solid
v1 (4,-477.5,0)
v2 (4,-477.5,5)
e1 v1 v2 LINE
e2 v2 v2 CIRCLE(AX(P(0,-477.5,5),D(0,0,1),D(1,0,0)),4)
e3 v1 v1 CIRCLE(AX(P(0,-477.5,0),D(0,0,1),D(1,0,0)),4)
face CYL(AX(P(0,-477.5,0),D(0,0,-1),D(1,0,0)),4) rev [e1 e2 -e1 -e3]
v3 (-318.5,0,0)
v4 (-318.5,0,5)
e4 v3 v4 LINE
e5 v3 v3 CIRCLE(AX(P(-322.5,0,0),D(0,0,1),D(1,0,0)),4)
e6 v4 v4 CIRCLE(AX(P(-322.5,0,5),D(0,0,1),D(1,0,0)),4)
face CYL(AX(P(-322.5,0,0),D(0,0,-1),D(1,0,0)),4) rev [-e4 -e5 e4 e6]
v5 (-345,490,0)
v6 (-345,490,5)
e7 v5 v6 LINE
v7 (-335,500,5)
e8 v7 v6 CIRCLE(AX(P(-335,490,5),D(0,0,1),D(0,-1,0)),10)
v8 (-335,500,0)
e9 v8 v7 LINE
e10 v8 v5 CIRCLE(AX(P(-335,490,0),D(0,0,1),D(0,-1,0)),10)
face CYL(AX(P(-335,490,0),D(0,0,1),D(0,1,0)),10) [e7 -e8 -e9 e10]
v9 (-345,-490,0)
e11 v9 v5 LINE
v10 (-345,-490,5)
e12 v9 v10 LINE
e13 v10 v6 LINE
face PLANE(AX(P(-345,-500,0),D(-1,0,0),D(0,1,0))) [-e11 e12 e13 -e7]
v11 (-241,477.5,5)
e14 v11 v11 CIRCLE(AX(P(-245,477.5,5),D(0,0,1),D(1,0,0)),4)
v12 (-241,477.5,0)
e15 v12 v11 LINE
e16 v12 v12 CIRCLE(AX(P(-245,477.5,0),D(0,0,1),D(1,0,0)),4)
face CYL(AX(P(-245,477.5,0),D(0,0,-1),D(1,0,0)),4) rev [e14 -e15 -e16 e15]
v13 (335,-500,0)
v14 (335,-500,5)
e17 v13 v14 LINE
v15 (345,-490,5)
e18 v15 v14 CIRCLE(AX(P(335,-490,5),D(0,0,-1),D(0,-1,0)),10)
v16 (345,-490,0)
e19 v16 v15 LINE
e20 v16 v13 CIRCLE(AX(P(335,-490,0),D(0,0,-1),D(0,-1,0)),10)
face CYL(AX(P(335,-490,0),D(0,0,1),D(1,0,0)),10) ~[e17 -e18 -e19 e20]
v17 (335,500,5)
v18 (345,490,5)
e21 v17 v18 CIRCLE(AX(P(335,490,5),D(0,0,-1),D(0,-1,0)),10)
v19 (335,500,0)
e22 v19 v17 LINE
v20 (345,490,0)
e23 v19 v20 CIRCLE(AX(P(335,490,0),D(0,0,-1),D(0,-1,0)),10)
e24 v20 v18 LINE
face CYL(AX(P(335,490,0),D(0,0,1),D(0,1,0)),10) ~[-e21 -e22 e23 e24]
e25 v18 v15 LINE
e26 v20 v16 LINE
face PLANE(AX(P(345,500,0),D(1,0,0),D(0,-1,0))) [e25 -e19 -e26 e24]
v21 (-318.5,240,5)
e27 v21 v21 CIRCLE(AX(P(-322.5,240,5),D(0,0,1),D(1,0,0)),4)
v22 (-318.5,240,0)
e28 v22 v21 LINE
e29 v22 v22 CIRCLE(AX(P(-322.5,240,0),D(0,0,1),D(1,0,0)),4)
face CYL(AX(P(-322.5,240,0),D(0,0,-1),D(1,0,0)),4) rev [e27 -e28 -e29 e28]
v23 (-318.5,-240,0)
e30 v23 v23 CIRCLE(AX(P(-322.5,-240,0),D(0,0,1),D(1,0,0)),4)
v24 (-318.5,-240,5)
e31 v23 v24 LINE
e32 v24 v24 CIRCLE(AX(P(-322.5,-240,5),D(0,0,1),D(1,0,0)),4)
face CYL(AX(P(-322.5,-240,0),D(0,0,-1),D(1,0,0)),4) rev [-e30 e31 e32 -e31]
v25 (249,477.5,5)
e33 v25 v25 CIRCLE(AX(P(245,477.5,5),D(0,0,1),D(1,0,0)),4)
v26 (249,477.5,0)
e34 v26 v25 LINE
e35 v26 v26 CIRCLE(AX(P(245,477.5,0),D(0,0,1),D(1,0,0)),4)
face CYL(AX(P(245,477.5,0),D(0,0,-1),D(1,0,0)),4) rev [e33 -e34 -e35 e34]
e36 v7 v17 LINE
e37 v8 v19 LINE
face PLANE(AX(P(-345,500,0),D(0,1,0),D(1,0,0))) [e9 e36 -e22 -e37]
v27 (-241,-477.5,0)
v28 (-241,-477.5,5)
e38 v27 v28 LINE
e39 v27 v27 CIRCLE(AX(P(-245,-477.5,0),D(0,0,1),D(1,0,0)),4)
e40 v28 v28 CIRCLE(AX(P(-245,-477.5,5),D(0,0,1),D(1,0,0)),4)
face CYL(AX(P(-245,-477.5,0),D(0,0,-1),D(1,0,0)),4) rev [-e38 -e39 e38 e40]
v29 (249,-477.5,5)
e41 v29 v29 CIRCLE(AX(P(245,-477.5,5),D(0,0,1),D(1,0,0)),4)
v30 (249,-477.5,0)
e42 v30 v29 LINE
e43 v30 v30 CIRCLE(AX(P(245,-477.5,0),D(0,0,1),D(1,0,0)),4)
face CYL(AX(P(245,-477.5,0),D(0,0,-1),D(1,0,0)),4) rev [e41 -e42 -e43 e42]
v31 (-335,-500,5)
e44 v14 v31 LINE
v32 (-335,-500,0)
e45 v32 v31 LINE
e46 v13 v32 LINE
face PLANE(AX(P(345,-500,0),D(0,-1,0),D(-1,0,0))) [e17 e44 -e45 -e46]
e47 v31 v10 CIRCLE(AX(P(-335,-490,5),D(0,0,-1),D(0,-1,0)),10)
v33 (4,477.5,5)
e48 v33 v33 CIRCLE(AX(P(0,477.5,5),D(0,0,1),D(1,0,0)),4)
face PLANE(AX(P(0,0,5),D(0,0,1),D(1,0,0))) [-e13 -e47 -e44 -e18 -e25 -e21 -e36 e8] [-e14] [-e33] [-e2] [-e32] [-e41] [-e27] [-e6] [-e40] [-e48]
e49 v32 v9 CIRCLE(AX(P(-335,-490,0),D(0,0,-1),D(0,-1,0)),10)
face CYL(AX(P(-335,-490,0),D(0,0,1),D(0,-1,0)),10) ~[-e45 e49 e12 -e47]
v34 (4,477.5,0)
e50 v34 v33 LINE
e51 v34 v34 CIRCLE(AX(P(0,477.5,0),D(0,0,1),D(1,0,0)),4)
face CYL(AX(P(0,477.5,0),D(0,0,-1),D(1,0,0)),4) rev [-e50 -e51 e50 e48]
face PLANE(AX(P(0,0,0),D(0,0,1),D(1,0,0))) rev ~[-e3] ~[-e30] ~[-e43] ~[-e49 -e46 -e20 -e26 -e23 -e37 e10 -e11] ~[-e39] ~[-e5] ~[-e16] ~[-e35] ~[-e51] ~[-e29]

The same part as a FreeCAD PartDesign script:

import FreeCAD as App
import Part
import Sketcher


def edges_at(feature, points):
    """Names of the edges that pass closest to the given points."""
    edges = feature.Shape.Edges
    near = lambda p: min(range(len(edges)), key=lambda i: edges[i].distToShape(Part.Vertex(*p))[0])
    return sorted({f"Edge{near(p) + 1}" for p in points})


def add_polygon(sketch, points):
    """Adds a closed chain of lines whose ends are joined by coincident constraints."""
    first, n = sketch.GeometryCount, len(points)
    for a, b in zip(points, points[1:] + points[:1]):
        sketch.addGeometry(Part.LineSegment(App.Vector(*a, 0), App.Vector(*b, 0)), False)
    for i in range(n):
        sketch.addConstraint(Sketcher.Constraint("Coincident", first + i, 2, first + (i + 1) % n, 1))

doc = App.newDocument("Part")
params = doc.addObject("Spreadsheet::Sheet", "Params")
for row, (alias, value) in enumerate([
    ("sketch1_diameter", "8 mm"),
    ("sketch1_width", "690 mm"),
    ("sketch1_height", "1000 mm"),
    ("pad1_length", "5 mm"),
    ("fillet_radius", "10 mm"),
], start=1):
    params.set(f"A{row}", alias)
    params.set(f"B{row}", "=" + value)
    params.setAlias(f"B{row}", alias)

body = doc.addObject("PartDesign::Body", "Body")

# Sketch on XY plane
sketch1 = body.newObject("Sketcher::SketchObject", "Sketch")
sketch1.AttachmentSupport = (doc.getObject("XY_Plane"), [""])
sketch1.MapMode = "FlatFace"
add_polygon(sketch1, [(345, 500), (-345, 500), (-345, -500), (345, -500)])  # lines 0-3
sketch1.addGeometry(Part.Circle(App.Vector(-245, -477.5, 0), App.Vector(0, 0, 1), 4), False)  # 4
sketch1.addGeometry(Part.Circle(App.Vector(-322.5, -240, 0), App.Vector(0, 0, 1), 4), False)  # 5
sketch1.addGeometry(Part.Circle(App.Vector(0, -477.5, 0), App.Vector(0, 0, 1), 4), False)  # 6
sketch1.addGeometry(Part.Circle(App.Vector(245, -477.5, 0), App.Vector(0, 0, 1), 4), False)  # 7
sketch1.addGeometry(Part.Circle(App.Vector(-322.5, 0, 0), App.Vector(0, 0, 1), 4), False)  # 8
sketch1.addGeometry(Part.Circle(App.Vector(-322.5, 240, 0), App.Vector(0, 0, 1), 4), False)  # 9
sketch1.addGeometry(Part.Circle(App.Vector(-245, 477.5, 0), App.Vector(0, 0, 1), 4), False)  # 10
sketch1.addGeometry(Part.Circle(App.Vector(0, 477.5, 0), App.Vector(0, 0, 1), 4), False)  # 11
sketch1.addGeometry(Part.Circle(App.Vector(245, 477.5, 0), App.Vector(0, 0, 1), 4), False)  # 12
sketch1.addConstraint(Sketcher.Constraint("Horizontal", 0))
sketch1.addConstraint(Sketcher.Constraint("Vertical", 1))
sketch1.addConstraint(Sketcher.Constraint("Horizontal", 2))
sketch1.addConstraint(Sketcher.Constraint("Vertical", 3))
sketch1.addConstraint(Sketcher.Constraint("Equal", 4, 5))
sketch1.addConstraint(Sketcher.Constraint("Equal", 5, 6))
sketch1.addConstraint(Sketcher.Constraint("Equal", 6, 7))
sketch1.addConstraint(Sketcher.Constraint("Equal", 7, 8))
sketch1.addConstraint(Sketcher.Constraint("Equal", 8, 9))
sketch1.addConstraint(Sketcher.Constraint("Equal", 9, 10))
sketch1.addConstraint(Sketcher.Constraint("Equal", 10, 11))
sketch1.addConstraint(Sketcher.Constraint("Equal", 11, 12))
sketch1.addConstraint(Sketcher.Constraint("Symmetric", 7, 3, 10, 3, -1, 1))
sketch1.addConstraint(Sketcher.Constraint("Symmetric", 6, 3, 11, 3, -1, 1))
sketch1.addConstraint(Sketcher.Constraint("Symmetric", 4, 3, 12, 3, -1, 1))
sketch1.addConstraint(Sketcher.Constraint("Symmetric", 0, 2, 2, 2, -1, 1))
sketch1.addConstraint(Sketcher.Constraint("Symmetric", 4, 3, 7, 3, -2))
sketch1.addConstraint(Sketcher.Constraint("Symmetric", 5, 3, 9, 3, -1))
sketch1.addConstraint(Sketcher.Constraint("PointOnObject", 6, 3, -2))
sketch1.addConstraint(Sketcher.Constraint("PointOnObject", 8, 3, -1))
sketch1.addConstraint(Sketcher.Constraint("Horizontal", 4, 3, 6, 3))
sketch1.addConstraint(Sketcher.Constraint("Vertical", 5, 3, 8, 3))
sketch1.addConstraint(Sketcher.Constraint("Diameter", 4, 8.0))
sketch1.addConstraint(Sketcher.Constraint("DistanceX", 0, 2, 0, 1, 690.0))
sketch1.addConstraint(Sketcher.Constraint("DistanceY", 1, 2, 1, 1, 1000.0))
sketch1.addConstraint(Sketcher.Constraint("DistanceX", 4, 3, -1, 1, 245.0))
sketch1.addConstraint(Sketcher.Constraint("DistanceY", 5, 3, -1, 1, 240.0))
sketch1.addConstraint(Sketcher.Constraint("DistanceY", 10, 3, 0, 2, 22.5))
sketch1.addConstraint(Sketcher.Constraint("DistanceX", 0, 2, 9, 3, 22.5))
sketch1.setExpression("Constraints[26]", "Params.sketch1_diameter")
sketch1.setExpression("Constraints[27]", "Params.sketch1_width")
sketch1.setExpression("Constraints[28]", "Params.sketch1_height")
pad1 = body.newObject("PartDesign::Pad", "Pad")
pad1.Profile = sketch1
pad1.setExpression("Length", "Params.pad1_length")
doc.recompute()

fillet = body.newObject("PartDesign::Fillet", "Fillet")
fillet.Base = (pad1, edges_at(pad1, [
    (345, 500, 2.5),
    (-345, 500, 2.5),
    (345, -500, 2.5),
    (-345, -500, 2.5),
]))
fillet.setExpression("Radius", "Params.fillet_radius")

doc.recompute()
